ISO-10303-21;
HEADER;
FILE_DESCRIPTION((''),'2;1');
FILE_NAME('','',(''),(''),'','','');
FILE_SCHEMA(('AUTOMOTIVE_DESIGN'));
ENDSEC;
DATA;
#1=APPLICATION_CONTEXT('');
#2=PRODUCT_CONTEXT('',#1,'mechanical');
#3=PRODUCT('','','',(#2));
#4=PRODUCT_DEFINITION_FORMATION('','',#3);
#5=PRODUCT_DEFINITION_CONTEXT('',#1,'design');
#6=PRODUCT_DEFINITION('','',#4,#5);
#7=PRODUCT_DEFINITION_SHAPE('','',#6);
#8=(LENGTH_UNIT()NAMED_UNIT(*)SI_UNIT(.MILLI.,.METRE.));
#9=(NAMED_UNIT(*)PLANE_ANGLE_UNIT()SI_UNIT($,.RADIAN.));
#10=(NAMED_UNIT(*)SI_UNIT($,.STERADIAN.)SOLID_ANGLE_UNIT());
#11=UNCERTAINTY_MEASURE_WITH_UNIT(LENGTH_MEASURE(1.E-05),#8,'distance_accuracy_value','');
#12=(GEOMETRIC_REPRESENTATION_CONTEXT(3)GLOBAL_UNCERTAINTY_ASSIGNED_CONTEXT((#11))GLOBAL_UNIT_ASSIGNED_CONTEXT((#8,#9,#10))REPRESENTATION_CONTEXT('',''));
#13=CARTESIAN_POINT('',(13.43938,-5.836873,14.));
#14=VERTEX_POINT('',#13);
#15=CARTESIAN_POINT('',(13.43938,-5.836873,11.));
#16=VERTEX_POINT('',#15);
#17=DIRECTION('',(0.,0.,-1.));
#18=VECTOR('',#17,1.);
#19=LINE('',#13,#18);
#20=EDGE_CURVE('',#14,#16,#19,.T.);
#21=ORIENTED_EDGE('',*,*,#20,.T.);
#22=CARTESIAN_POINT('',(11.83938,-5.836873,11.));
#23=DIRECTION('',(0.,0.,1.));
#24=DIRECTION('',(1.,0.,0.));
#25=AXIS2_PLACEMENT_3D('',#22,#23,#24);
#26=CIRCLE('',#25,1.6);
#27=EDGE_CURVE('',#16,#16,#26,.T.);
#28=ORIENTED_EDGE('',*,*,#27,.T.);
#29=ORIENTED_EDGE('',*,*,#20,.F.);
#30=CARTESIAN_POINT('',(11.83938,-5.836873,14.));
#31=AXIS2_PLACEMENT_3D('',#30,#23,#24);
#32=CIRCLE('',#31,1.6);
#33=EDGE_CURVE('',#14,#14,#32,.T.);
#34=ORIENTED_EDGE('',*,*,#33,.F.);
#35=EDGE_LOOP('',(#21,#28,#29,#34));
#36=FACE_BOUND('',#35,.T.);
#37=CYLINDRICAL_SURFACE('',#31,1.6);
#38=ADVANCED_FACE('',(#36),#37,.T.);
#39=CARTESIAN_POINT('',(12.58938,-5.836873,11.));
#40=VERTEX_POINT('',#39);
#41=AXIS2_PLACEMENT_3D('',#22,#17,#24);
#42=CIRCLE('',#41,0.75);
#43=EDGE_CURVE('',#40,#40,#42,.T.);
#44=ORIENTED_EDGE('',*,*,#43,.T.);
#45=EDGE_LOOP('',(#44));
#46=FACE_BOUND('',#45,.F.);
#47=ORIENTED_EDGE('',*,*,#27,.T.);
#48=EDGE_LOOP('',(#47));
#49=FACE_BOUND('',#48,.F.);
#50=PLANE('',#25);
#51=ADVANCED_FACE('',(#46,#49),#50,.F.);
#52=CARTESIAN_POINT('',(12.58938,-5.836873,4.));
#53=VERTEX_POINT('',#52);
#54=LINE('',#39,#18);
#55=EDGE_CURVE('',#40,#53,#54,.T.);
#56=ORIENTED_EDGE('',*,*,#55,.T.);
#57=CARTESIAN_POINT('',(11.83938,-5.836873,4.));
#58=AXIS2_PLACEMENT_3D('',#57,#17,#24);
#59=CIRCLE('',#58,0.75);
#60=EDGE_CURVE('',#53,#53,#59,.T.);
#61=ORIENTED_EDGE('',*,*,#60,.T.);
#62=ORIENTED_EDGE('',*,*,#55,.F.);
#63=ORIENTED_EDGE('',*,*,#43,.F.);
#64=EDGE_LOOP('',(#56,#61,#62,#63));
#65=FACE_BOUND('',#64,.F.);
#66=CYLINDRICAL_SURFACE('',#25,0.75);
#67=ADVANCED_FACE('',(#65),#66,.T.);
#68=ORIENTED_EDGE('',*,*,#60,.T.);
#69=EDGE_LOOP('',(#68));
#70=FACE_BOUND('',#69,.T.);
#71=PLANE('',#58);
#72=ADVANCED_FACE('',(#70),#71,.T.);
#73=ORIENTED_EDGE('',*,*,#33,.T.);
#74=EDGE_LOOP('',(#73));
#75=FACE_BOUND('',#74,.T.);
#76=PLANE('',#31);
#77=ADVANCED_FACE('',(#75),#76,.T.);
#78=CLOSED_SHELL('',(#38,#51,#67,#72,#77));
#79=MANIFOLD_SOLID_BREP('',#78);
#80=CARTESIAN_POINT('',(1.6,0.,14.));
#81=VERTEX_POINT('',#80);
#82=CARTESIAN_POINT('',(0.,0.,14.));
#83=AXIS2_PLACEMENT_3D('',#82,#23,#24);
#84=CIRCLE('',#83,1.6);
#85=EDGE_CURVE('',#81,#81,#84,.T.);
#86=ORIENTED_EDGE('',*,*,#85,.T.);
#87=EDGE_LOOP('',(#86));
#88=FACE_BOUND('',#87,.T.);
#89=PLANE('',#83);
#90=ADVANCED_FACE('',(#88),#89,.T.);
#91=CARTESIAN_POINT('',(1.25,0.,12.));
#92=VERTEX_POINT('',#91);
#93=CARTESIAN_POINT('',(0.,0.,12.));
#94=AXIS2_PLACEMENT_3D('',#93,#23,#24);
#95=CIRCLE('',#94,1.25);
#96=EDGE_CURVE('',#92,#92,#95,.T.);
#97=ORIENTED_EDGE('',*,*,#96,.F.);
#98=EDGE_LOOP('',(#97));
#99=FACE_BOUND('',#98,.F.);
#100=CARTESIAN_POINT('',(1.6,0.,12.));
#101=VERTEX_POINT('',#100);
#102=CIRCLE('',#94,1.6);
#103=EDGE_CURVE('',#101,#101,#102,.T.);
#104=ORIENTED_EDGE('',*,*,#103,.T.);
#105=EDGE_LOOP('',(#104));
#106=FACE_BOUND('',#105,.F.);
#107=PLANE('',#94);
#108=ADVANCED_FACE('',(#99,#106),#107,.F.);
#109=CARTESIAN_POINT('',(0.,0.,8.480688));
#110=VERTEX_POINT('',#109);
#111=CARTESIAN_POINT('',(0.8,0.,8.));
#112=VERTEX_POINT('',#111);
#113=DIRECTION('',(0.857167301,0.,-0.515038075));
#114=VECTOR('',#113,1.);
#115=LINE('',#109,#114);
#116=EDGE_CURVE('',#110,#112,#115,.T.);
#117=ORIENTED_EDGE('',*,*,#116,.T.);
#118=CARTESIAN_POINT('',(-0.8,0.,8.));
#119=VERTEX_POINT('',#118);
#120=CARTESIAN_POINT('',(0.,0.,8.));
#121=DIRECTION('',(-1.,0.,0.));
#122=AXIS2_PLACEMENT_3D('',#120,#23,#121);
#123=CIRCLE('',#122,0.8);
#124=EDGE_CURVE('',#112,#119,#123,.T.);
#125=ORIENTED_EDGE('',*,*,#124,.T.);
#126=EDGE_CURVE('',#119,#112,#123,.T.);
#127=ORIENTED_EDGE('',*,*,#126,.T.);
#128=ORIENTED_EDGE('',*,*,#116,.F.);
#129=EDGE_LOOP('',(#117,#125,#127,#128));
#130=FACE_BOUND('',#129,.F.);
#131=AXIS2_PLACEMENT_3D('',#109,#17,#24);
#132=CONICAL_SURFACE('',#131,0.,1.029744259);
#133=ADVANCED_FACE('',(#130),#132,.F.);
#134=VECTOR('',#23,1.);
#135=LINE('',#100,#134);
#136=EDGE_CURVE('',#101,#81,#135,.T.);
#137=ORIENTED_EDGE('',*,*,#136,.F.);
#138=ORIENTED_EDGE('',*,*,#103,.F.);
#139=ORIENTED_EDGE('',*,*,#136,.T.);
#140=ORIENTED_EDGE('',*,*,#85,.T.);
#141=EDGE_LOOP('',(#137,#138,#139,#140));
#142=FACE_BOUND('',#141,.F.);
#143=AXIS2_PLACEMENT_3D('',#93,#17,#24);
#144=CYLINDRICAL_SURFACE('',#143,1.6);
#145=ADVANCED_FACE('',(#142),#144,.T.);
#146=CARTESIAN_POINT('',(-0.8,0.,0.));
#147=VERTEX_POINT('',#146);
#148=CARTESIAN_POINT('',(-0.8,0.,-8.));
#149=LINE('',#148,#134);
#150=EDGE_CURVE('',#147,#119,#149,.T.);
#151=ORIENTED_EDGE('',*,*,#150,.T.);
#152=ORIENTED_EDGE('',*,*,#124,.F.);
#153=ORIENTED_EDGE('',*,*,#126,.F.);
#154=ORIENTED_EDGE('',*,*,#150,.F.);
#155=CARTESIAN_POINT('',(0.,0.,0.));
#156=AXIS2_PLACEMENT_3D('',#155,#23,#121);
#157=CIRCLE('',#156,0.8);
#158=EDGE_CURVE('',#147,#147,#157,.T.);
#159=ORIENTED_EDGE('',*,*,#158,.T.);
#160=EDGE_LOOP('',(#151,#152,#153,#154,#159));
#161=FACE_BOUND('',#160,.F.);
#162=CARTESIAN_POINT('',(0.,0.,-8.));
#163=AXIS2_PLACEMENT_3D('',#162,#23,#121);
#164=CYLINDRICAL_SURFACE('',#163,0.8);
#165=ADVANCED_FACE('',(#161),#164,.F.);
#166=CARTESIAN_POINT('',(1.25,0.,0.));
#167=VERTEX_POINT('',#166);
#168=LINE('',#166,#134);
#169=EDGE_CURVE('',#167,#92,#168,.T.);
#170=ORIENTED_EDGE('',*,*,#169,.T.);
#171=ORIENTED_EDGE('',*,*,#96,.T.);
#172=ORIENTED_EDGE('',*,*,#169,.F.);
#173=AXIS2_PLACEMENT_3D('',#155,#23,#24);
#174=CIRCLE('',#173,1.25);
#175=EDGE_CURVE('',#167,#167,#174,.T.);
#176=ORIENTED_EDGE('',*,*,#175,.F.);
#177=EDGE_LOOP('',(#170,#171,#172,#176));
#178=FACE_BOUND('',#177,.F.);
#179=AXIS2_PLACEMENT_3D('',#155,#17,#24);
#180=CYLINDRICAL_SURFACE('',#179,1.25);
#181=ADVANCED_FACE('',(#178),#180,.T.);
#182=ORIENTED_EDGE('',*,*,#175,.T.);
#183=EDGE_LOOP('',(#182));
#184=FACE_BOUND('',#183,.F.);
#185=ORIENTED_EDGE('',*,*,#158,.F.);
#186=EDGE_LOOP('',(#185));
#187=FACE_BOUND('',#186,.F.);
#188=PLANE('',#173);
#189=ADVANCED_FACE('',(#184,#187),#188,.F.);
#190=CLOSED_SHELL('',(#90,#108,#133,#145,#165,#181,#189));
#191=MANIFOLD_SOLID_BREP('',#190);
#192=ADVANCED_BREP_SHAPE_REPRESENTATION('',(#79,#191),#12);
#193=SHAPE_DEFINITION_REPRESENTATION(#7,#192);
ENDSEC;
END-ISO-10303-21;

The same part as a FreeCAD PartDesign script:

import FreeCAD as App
import Part
import Sketcher

V = App.Vector
Q = App.Units.Quantity

doc = App.newDocument("Part")
body = doc.addObject("PartDesign::Body", "Body")

# Sketch on XY plane
sketch1 = body.newObject("Sketcher::SketchObject", "Sketch")
sketch1.AttachmentSupport = (doc.getObject("XY_Plane"), [""])
sketch1.MapMode = "FlatFace"
sketch1.addGeometry(Part.Circle(V(0, 0, 0), V(0, 0, 1), 1.2), False)
sketch1.addConstraint([
    Sketcher.Constraint("Coincident", 0, 3, -1, 1),
    Sketcher.Constraint("Diameter", 0, Q("2.5 mm")),
])
pad1 = body.newObject("PartDesign::Pad", "Pad")
pad1.Profile = sketch1
pad1.Length = 12

# Sketch on XY plane
sketch2 = body.newObject("Sketcher::SketchObject", "Sketch001")
sketch2.AttachmentSupport = (doc.getObject("XY_Plane"), [""])
sketch2.MapMode = "FlatFace"
sketch2.AttachmentOffset = App.Placement(V(0, 0, 12), App.Rotation())
sketch2.addGeometry(Part.Circle(V(0, 0, 0), V(0, 0, 1), 1.6), False)
sketch2.addConstraint([
    Sketcher.Constraint("Coincident", 0, 3, -1, 1),
    Sketcher.Constraint("Diameter", 0, Q("3.2 mm")),
])
pad2 = body.newObject("PartDesign::Pad", "Pad001")
pad2.Profile = sketch2
pad2.Length = 2

# Sketch on XY plane
sketch3 = body.newObject("Sketcher::SketchObject", "Sketch002")
sketch3.AttachmentSupport = (doc.getObject("XY_Plane"), [""])
sketch3.MapMode = "FlatFace"
sketch3.addGeometry(Part.Circle(V(0, 0, 0), V(0, 0, 1), 0.8), False)
sketch3.addConstraint([
    Sketcher.Constraint("Coincident", 0, 3, -1, 1),
    Sketcher.Constraint("Diameter", 0, Q("1.6 mm")),
])
doc.recompute()
hole = body.newObject("PartDesign::Hole", "Hole")
hole.Profile = sketch3
hole.ThreadType = "None"
hole.Diameter = 1.6
hole.DepthType = "Dimension"
hole.Depth = 8
hole.DrillPoint = "Angled"
hole.DrillPointAngle = 118
hole.Reversed = True
body2 = doc.addObject("PartDesign::Body", "Body001")

# Sketch on XY plane
sketch4 = body2.newObject("Sketcher::SketchObject", "Sketch003")
sketch4.AttachmentSupport = (doc.getObject("XY_Plane001"), [""])
sketch4.MapMode = "FlatFace"
sketch4.AttachmentOffset = App.Placement(V(0, 0, 14), App.Rotation())
sketch4.addGeometry(Part.Circle(V(11.8, -5.8, 0), V(0, 0, 1), 1.6), False)
sketch4.addConstraint([
    Sketcher.Constraint("Diameter", 0, Q("3.2 mm")),
    Sketcher.Constraint("DistanceX", -1, 1, 0, 3, Q("11.83938 mm")),
    Sketcher.Constraint("DistanceY", 0, 3, -1, 1, Q("5.836873 mm")),
])
pad3 = body2.newObject("PartDesign::Pad", "Pad002")
pad3.Profile = sketch4
pad3.Length = 3
pad3.Reversed = True

# Sketch on XY plane
sketch5 = body2.newObject("Sketcher::SketchObject", "Sketch004")
sketch5.AttachmentSupport = (doc.getObject("XY_Plane001"), [""])
sketch5.MapMode = "FlatFace"
sketch5.AttachmentOffset = App.Placement(V(0, 0, 11), App.Rotation())
sketch5.addGeometry(Part.Circle(V(11.8, -5.8, 0), V(0, 0, 1), 0.8), False)
sketch5.addConstraint([
    Sketcher.Constraint("Diameter", 0, Q("1.5 mm")),
    Sketcher.Constraint("DistanceX", -1, 1, 0, 3, Q("11.83938 mm")),
    Sketcher.Constraint("DistanceY", 0, 3, -1, 1, Q("5.836873 mm")),
])
pad4 = body2.newObject("PartDesign::Pad", "Pad003")
pad4.Profile = sketch5
pad4.Length = 7
pad4.Reversed = True

doc.recompute()
